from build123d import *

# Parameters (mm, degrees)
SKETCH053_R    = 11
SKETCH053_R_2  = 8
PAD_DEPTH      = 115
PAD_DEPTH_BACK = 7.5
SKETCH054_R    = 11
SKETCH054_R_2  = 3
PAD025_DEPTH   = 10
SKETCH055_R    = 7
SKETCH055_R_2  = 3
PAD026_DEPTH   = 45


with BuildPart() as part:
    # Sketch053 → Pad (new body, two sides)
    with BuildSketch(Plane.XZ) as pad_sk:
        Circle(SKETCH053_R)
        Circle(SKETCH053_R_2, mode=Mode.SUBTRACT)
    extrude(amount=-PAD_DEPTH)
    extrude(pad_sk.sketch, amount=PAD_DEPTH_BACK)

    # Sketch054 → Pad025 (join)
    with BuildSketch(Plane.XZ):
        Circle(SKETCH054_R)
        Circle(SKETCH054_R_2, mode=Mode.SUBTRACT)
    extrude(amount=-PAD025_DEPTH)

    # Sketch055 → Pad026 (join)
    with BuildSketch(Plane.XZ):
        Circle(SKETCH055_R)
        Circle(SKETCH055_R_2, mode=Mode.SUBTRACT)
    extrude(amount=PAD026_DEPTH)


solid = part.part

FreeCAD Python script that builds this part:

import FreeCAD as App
import Part
import Sketcher
from FreeCAD import Vector
Q = App.Units.Quantity

doc = App.newDocument("Part")
body = doc.addObject("PartDesign::Body", "Body")

sketch1 = body.newObject("Sketcher::SketchObject", "Sketch")
sketch1.AttachmentSupport = (doc.getObject("XZ_Plane"), [""])
sketch1.MapMode = "FlatFace"
sketch1.addGeometry(Part.Circle(Vector(0, 0, 0), Vector(0, 0, 1), 11), False)
sketch1.addGeometry(Part.Circle(Vector(0, 0, 0), Vector(0, 0, 1), 8), False)
sketch1.addConstraint(Sketcher.Constraint("Coincident", 0, 3, -1, 1))
sketch1.addConstraint(Sketcher.Constraint("Coincident", 1, 3, -1, 1))
sketch1.addConstraint(Sketcher.Constraint("Diameter", 0, Q("22 mm")))
sketch1.addConstraint(Sketcher.Constraint("Diameter", 1, Q("16 mm")))
pad1 = body.newObject("PartDesign::Pad", "Pad")
pad1.Profile = sketch1
pad1.Type = "TwoLengths"
pad1.Length = 115
pad1.Length2 = 7.5
pad1.Reversed = True

sketch2 = body.newObject("Sketcher::SketchObject", "Sketch001")
sketch2.AttachmentSupport = (doc.getObject("XZ_Plane"), [""])
sketch2.MapMode = "FlatFace"
sketch2.addGeometry(Part.Circle(Vector(0, 0, 0), Vector(0, 0, 1), 11), False)
sketch2.addGeometry(Part.Circle(Vector(0, 0, 0), Vector(0, 0, 1), 3), False)
sketch2.addConstraint(Sketcher.Constraint("Coincident", 0, 3, -1, 1))
sketch2.addConstraint(Sketcher.Constraint("Coincident", 1, 3, -1, 1))
sketch2.addConstraint(Sketcher.Constraint("Diameter", 0, Q("22 mm")))
sketch2.addConstraint(Sketcher.Constraint("Diameter", 1, Q("6 mm")))
pad2 = body.newObject("PartDesign::Pad", "Pad001")
pad2.Profile = sketch2
pad2.Length = 10
pad2.Reversed = True

sketch3 = body.newObject("Sketcher::SketchObject", "Sketch002")
sketch3.AttachmentSupport = (doc.getObject("XZ_Plane"), [""])
sketch3.MapMode = "FlatFace"
sketch3.addGeometry(Part.Circle(Vector(0, 0, 0), Vector(0, 0, 1), 7), False)
sketch3.addGeometry(Part.Circle(Vector(0, 0, 0), Vector(0, 0, 1), 3), False)
sketch3.addConstraint(Sketcher.Constraint("Coincident", 0, 3, -1, 1))
sketch3.addConstraint(Sketcher.Constraint("Coincident", 1, 3, -1, 1))
sketch3.addConstraint(Sketcher.Constraint("Diameter", 0, Q("14 mm")))
sketch3.addConstraint(Sketcher.Constraint("Diameter", 1, Q("6 mm")))
pad3 = body.newObject("PartDesign::Pad", "Pad002")
pad3.Profile = sketch3
pad3.Length = 45

doc.recompute()
